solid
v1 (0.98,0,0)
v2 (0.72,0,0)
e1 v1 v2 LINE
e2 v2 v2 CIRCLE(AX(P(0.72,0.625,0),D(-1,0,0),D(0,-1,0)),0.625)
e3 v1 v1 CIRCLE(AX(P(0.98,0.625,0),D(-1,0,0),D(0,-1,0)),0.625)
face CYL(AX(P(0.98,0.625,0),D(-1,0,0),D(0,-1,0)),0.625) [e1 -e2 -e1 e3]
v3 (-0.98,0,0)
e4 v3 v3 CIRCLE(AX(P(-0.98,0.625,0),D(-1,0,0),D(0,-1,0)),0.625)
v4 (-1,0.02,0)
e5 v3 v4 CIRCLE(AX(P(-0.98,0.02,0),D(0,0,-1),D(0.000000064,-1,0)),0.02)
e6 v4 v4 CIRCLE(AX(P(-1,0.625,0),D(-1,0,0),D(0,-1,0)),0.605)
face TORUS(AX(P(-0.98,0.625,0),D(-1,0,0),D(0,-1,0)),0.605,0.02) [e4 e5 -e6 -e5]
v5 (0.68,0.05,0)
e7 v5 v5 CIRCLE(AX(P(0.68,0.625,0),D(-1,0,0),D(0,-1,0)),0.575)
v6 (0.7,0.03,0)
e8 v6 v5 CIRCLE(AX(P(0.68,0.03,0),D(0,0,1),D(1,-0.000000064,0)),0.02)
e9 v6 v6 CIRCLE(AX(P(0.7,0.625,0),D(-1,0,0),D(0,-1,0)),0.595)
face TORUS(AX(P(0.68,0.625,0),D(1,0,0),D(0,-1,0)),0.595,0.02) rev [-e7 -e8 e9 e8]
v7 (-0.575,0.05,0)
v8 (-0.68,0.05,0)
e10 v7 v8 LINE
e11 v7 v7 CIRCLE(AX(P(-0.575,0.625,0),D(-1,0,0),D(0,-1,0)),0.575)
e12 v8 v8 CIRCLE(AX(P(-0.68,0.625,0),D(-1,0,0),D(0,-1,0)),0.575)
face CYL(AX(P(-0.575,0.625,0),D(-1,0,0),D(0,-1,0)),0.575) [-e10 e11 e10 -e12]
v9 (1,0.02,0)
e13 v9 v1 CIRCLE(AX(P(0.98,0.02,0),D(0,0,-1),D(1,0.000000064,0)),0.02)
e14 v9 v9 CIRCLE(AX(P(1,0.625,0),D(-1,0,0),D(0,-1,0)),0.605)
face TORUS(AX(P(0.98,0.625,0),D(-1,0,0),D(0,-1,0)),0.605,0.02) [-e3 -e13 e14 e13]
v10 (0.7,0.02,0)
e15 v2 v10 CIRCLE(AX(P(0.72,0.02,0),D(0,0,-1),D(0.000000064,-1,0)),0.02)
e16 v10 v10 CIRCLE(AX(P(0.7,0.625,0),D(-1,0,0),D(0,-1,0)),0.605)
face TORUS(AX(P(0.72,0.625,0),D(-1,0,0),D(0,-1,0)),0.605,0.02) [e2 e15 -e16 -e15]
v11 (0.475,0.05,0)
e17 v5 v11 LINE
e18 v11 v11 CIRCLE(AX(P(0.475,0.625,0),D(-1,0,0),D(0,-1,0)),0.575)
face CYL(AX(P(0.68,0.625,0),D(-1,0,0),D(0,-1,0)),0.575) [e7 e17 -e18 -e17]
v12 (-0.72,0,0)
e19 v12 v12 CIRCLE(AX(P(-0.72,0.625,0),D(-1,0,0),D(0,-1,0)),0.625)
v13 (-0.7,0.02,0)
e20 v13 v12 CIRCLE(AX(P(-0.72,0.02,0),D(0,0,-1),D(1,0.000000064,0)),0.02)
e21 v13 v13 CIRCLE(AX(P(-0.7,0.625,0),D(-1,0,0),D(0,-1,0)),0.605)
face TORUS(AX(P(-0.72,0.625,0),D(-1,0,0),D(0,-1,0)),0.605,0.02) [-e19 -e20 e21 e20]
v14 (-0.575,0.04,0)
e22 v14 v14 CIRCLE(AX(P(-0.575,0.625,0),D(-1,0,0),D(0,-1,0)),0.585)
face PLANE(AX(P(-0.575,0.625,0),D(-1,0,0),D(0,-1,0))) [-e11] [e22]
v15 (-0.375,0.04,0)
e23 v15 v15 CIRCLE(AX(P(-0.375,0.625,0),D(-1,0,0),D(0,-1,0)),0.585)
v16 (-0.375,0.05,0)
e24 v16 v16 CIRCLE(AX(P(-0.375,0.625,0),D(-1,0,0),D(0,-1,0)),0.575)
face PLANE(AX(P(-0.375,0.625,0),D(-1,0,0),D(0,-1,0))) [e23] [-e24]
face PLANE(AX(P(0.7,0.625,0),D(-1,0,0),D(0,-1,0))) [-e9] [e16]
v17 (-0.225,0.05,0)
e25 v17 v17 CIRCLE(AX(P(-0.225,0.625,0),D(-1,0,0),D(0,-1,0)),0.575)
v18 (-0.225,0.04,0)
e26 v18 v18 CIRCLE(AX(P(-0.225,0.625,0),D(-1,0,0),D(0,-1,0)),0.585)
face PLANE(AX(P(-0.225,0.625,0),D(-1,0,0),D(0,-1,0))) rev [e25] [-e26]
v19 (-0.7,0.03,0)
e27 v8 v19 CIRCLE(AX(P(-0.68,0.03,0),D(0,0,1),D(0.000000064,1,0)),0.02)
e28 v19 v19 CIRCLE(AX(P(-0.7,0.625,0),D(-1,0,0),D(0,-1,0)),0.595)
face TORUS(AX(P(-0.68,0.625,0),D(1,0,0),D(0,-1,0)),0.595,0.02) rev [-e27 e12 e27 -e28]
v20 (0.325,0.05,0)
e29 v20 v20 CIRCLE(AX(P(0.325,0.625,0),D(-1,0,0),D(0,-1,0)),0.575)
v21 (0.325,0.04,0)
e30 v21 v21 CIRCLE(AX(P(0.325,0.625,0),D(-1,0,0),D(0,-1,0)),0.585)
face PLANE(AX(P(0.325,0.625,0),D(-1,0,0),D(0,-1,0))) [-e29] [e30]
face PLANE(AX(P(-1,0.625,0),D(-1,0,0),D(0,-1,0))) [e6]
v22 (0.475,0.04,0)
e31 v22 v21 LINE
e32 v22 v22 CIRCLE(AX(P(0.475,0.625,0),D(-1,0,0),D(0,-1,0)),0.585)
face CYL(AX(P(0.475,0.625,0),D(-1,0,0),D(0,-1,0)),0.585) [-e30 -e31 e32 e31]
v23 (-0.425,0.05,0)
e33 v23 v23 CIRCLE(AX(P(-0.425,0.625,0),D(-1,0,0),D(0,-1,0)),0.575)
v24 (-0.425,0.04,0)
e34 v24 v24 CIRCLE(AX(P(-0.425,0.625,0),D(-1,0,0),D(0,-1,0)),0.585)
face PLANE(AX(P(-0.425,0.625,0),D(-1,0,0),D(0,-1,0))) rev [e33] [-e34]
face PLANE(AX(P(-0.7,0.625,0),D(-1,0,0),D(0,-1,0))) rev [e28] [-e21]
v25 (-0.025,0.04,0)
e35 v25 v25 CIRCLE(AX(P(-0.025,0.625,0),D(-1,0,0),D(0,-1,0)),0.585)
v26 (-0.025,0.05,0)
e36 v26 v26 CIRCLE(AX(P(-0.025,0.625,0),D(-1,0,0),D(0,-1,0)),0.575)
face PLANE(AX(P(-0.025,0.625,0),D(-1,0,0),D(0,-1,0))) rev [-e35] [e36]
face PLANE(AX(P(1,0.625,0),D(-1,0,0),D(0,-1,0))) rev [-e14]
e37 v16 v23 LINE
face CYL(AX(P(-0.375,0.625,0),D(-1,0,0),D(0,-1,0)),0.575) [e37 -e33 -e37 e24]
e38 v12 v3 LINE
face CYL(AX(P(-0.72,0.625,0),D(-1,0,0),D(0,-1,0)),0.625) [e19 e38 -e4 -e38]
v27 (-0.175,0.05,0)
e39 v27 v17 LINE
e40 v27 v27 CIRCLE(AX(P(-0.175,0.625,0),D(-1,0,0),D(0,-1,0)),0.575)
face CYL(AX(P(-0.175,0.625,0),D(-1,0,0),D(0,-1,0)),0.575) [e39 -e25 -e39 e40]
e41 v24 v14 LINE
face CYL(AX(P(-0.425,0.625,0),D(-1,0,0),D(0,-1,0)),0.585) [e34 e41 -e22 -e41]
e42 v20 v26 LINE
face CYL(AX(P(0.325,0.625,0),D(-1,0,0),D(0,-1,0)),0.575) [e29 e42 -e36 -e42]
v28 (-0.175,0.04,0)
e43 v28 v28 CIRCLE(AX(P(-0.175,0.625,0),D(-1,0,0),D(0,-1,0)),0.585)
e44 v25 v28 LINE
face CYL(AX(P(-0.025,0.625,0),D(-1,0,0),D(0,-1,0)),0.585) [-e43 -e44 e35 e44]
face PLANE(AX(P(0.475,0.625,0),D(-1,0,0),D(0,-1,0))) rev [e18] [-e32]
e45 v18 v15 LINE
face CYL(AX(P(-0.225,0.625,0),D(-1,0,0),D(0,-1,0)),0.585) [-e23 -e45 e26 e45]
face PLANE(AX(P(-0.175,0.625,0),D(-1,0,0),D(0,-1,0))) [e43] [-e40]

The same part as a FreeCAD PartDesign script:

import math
import FreeCAD as App
import Part
import Sketcher

V = App.Vector
Q = App.Units.Quantity

doc = App.newDocument("Part")
body = doc.addObject("PartDesign::Body", "Body")

# Sketch on XY plane
sketch1 = body.newObject("Sketcher::SketchObject", "Sketch")
sketch1.AttachmentSupport = (doc.getObject("XY_Plane"), [""])
sketch1.MapMode = "FlatFace"
sketch1.addGeometry(Part.LineSegment(V(1, 0.625, 0), V(-1, 0.625, 0)), False)
sketch1.addGeometry(Part.LineSegment(V(-1, 0.625, 0), V(-1, 0.02, 0)), False)
sketch1.addGeometry(Part.ArcOfCircle(Part.Circle(V(-0.98, 0.02, 0), V(0, 0, 1), 0.02), math.radians(179.999997), math.radians(270.000003)), False)
sketch1.addGeometry(Part.LineSegment(V(-0.98, 0, 0), V(-0.72, 0, 0)), False)
sketch1.addGeometry(Part.ArcOfCircle(Part.Circle(V(-0.72, 0.02, 0), V(0, 0, 1), 0.02), math.radians(-90.000003), math.radians(0.000003)), False)
sketch1.addGeometry(Part.LineSegment(V(-0.7, 0.02, 0), V(-0.7, 0.03, 0)), False)
sketch1.addGeometry(Part.ArcOfCircle(Part.Circle(V(-0.68, 0.03, 0), V(0, 0, 1), 0.02), math.radians(89.999997), math.radians(180.000003)), False)
sketch1.addGeometry(Part.LineSegment(V(-0.68, 0.05, 0), V(-0.575, 0.05, 0)), False)
sketch1.addGeometry(Part.LineSegment(V(-0.575, 0.05, 0), V(-0.575, 0.04, 0)), False)
sketch1.addGeometry(Part.LineSegment(V(-0.575, 0.04, 0), V(-0.425, 0.04, 0)), False)
sketch1.addGeometry(Part.LineSegment(V(-0.425, 0.04, 0), V(-0.425, 0.05, 0)), False)
sketch1.addGeometry(Part.LineSegment(V(-0.425, 0.05, 0), V(-0.375, 0.05, 0)), False)
sketch1.addGeometry(Part.LineSegment(V(-0.375, 0.05, 0), V(-0.375, 0.04, 0)), False)
sketch1.addGeometry(Part.LineSegment(V(-0.375, 0.04, 0), V(-0.225, 0.04, 0)), False)
sketch1.addGeometry(Part.LineSegment(V(-0.225, 0.04, 0), V(-0.225, 0.05, 0)), False)
sketch1.addGeometry(Part.LineSegment(V(-0.225, 0.05, 0), V(-0.175, 0.05, 0)), False)
sketch1.addGeometry(Part.LineSegment(V(-0.175, 0.05, 0), V(-0.175, 0.04, 0)), False)
sketch1.addGeometry(Part.LineSegment(V(-0.175, 0.04, 0), V(-0.025, 0.04, 0)), False)
sketch1.addGeometry(Part.LineSegment(V(-0.025, 0.04, 0), V(-0.025, 0.05, 0)), False)
sketch1.addGeometry(Part.LineSegment(V(-0.025, 0.05, 0), V(0.325, 0.05, 0)), False)
sketch1.addGeometry(Part.LineSegment(V(0.325, 0.05, 0), V(0.325, 0.04, 0)), False)
sketch1.addGeometry(Part.LineSegment(V(0.325, 0.04, 0), V(0.475, 0.04, 0)), False)
sketch1.addGeometry(Part.LineSegment(V(0.475, 0.04, 0), V(0.475, 0.05, 0)), False)
sketch1.addGeometry(Part.LineSegment(V(0.475, 0.05, 0), V(0.68, 0.05, 0)), False)
sketch1.addGeometry(Part.ArcOfCircle(Part.Circle(V(0.68, 0.03, 0), V(0, 0, 1), 0.02), math.radians(-0.000003), math.radians(90.000003)), False)
sketch1.addGeometry(Part.LineSegment(V(0.7, 0.03, 0), V(0.7, 0.02, 0)), False)
sketch1.addGeometry(Part.ArcOfCircle(Part.Circle(V(0.72, 0.02, 0), V(0, 0, 1), 0.02), math.radians(179.999997), math.radians(270.000003)), False)
sketch1.addGeometry(Part.LineSegment(V(0.72, 0, 0), V(0.98, 0, 0)), False)
sketch1.addGeometry(Part.ArcOfCircle(Part.Circle(V(0.98, 0.02, 0), V(0, 0, 1), 0.02), math.radians(-90.000003), math.radians(0.000003)), False)
sketch1.addGeometry(Part.LineSegment(V(1, 0.02, 0), V(1, 0.625, 0)), False)
sketch1.addGeometry(Part.LineSegment(V(1, 0.625, 0), V(-1, 0.625, 0)), True)  # axis
sketch1.addConstraint(Sketcher.Constraint("Coincident", 0, 2, 1, 1))
sketch1.addConstraint(Sketcher.Constraint("Tangent", 1, 2, 2, 1))
sketch1.addConstraint(Sketcher.Constraint("Tangent", 2, 2, 3, 1))
sketch1.addConstraint(Sketcher.Constraint("Tangent", 3, 2, 4, 1))
sketch1.addConstraint(Sketcher.Constraint("Tangent", 4, 2, 5, 1))
sketch1.addConstraint(Sketcher.Constraint("Tangent", 5, 2, 6, 2))
sketch1.addConstraint(Sketcher.Constraint("Tangent", 6, 1, 7, 1))
sketch1.addConstraint(Sketcher.Constraint("Coincident", 7, 2, 8, 1))
sketch1.addConstraint(Sketcher.Constraint("Coincident", 8, 2, 9, 1))
sketch1.addConstraint(Sketcher.Constraint("Coincident", 9, 2, 10, 1))
sketch1.addConstraint(Sketcher.Constraint("Coincident", 10, 2, 11, 1))
sketch1.addConstraint(Sketcher.Constraint("Coincident", 11, 2, 12, 1))
sketch1.addConstraint(Sketcher.Constraint("Coincident", 12, 2, 13, 1))
sketch1.addConstraint(Sketcher.Constraint("Coincident", 13, 2, 14, 1))
sketch1.addConstraint(Sketcher.Constraint("Coincident", 14, 2, 15, 1))
sketch1.addConstraint(Sketcher.Constraint("Coincident", 15, 2, 16, 1))
sketch1.addConstraint(Sketcher.Constraint("Coincident", 16, 2, 17, 1))
sketch1.addConstraint(Sketcher.Constraint("Coincident", 17, 2, 18, 1))
sketch1.addConstraint(Sketcher.Constraint("Coincident", 18, 2, 19, 1))
sketch1.addConstraint(Sketcher.Constraint("Coincident", 19, 2, 20, 1))
sketch1.addConstraint(Sketcher.Constraint("Coincident", 20, 2, 21, 1))
sketch1.addConstraint(Sketcher.Constraint("Coincident", 21, 2, 22, 1))
sketch1.addConstraint(Sketcher.Constraint("Coincident", 22, 2, 23, 1))
sketch1.addConstraint(Sketcher.Constraint("Tangent", 23, 2, 24, 2))
sketch1.addConstraint(Sketcher.Constraint("Tangent", 24, 1, 25, 1))
sketch1.addConstraint(Sketcher.Constraint("Tangent", 25, 2, 26, 1))
sketch1.addConstraint(Sketcher.Constraint("Tangent", 26, 2, 27, 1))
sketch1.addConstraint(Sketcher.Constraint("Tangent", 27, 2, 28, 1))
sketch1.addConstraint(Sketcher.Constraint("Tangent", 28, 2, 29, 1))
sketch1.addConstraint(Sketcher.Constraint("Coincident", 29, 2, 0, 1))
sketch1.addConstraint(Sketcher.Constraint("Horizontal", 0))
sketch1.addConstraint(Sketcher.Constraint("Vertical", 1))
sketch1.addConstraint(Sketcher.Constraint("Horizontal", 3))
sketch1.addConstraint(Sketcher.Constraint("Vertical", 5))
sketch1.addConstraint(Sketcher.Constraint("Horizontal", 7))
sketch1.addConstraint(Sketcher.Constraint("Vertical", 8))
sketch1.addConstraint(Sketcher.Constraint("Horizontal", 9))
sketch1.addConstraint(Sketcher.Constraint("Vertical", 10))
sketch1.addConstraint(Sketcher.Constraint("Horizontal", 11))
sketch1.addConstraint(Sketcher.Constraint("Vertical", 12))
sketch1.addConstraint(Sketcher.Constraint("Horizontal", 13))
sketch1.addConstraint(Sketcher.Constraint("Vertical", 14))
sketch1.addConstraint(Sketcher.Constraint("Horizontal", 15))
sketch1.addConstraint(Sketcher.Constraint("Vertical", 16))
sketch1.addConstraint(Sketcher.Constraint("Horizontal", 17))
sketch1.addConstraint(Sketcher.Constraint("Vertical", 18))
sketch1.addConstraint(Sketcher.Constraint("Horizontal", 19))
sketch1.addConstraint(Sketcher.Constraint("Vertical", 20))
sketch1.addConstraint(Sketcher.Constraint("Horizontal", 21))
sketch1.addConstraint(Sketcher.Constraint("Vertical", 22))
sketch1.addConstraint(Sketcher.Constraint("Horizontal", 23))
sketch1.addConstraint(Sketcher.Constraint("Vertical", 25))
sketch1.addConstraint(Sketcher.Constraint("Horizontal", 27))
sketch1.addConstraint(Sketcher.Constraint("Vertical", 29))
sketch1.addConstraint(Sketcher.Constraint("Horizontal", 30))
sketch1.addConstraint(Sketcher.Constraint("Coincident", 30, 1, 29, 2))
sketch1.addConstraint(Sketcher.Constraint("Equal", 2, 4))
sketch1.addConstraint(Sketcher.Constraint("Equal", 4, 6))
sketch1.addConstraint(Sketcher.Constraint("Equal", 6, 24))
sketch1.addConstraint(Sketcher.Constraint("Equal", 24, 26))
sketch1.addConstraint(Sketcher.Constraint("Equal", 26, 28))
sketch1.addConstraint(Sketcher.Constraint("Symmetric", 3, 2, 26, 2, -1, 1))
sketch1.addConstraint(Sketcher.Constraint("Symmetric", 2, 3, 28, 3, -2))
sketch1.addConstraint(Sketcher.Constraint("Horizontal", 6, 3, 24, 3))
sketch1.addConstraint(Sketcher.Constraint("Horizontal", 7, 2, 10, 2))
sketch1.addConstraint(Sketcher.Constraint("Horizontal", 9, 2, 12, 2))
sketch1.addConstraint(Sketcher.Constraint("Horizontal", 11, 2, 14, 2))
sketch1.addConstraint(Sketcher.Constraint("Horizontal", 13, 2, 16, 2))
sketch1.addConstraint(Sketcher.Constraint("Horizontal", 15, 2, 18, 2))
sketch1.addConstraint(Sketcher.Constraint("Horizontal", 17, 2, 20, 2))
sketch1.addConstraint(Sketcher.Constraint("Vertical", 1, 2, 30, 2))
sketch1.addConstraint(Sketcher.Constraint("Equal", 9, 13))
sketch1.addConstraint(Sketcher.Constraint("Equal", 11, 15))
sketch1.addConstraint(Sketcher.Constraint("Equal", 13, 17))
sketch1.addConstraint(Sketcher.Constraint("Equal", 17, 21))
sketch1.addConstraint(Sketcher.Constraint("Equal", 5, 8))
sketch1.addConstraint(Sketcher.Constraint("DistanceX", 0, 2, 0, 1, Q("2 mm")))
sketch1.addConstraint(Sketcher.Constraint("Radius", 2, Q("0.02 mm")))
sketch1.addConstraint(Sketcher.Constraint("DistanceX", 3, 1, 3, 2, Q("0.26 mm")))
sketch1.addConstraint(Sketcher.Constraint("DistanceX", 9, 1, 9, 2, Q("0.15 mm")))
sketch1.addConstraint(Sketcher.Constraint("DistanceX", 11, 1, 11, 2, Q("0.05 mm")))
sketch1.addConstraint(Sketcher.Constraint("DistanceX", 19, 1, 19, 2, Q("0.35 mm")))
sketch1.addConstraint(Sketcher.Constraint("DistanceY", 5, 1, 5, 2, Q("0.01 mm")))
sketch1.addConstraint(Sketcher.Constraint("DistanceX", 7, 1, 7, 2, Q("0.105 mm")))
sketch1.addConstraint(Sketcher.Constraint("DistanceY", 1, 2, 1, 1, Q("0.605 mm")))
revolution = body.newObject("PartDesign::Revolution", "Revolution")
revolution.Profile = sketch1
revolution.ReferenceAxis = (sketch1, ["Axis0"])
revolution.Angle = 360

doc.recompute()
